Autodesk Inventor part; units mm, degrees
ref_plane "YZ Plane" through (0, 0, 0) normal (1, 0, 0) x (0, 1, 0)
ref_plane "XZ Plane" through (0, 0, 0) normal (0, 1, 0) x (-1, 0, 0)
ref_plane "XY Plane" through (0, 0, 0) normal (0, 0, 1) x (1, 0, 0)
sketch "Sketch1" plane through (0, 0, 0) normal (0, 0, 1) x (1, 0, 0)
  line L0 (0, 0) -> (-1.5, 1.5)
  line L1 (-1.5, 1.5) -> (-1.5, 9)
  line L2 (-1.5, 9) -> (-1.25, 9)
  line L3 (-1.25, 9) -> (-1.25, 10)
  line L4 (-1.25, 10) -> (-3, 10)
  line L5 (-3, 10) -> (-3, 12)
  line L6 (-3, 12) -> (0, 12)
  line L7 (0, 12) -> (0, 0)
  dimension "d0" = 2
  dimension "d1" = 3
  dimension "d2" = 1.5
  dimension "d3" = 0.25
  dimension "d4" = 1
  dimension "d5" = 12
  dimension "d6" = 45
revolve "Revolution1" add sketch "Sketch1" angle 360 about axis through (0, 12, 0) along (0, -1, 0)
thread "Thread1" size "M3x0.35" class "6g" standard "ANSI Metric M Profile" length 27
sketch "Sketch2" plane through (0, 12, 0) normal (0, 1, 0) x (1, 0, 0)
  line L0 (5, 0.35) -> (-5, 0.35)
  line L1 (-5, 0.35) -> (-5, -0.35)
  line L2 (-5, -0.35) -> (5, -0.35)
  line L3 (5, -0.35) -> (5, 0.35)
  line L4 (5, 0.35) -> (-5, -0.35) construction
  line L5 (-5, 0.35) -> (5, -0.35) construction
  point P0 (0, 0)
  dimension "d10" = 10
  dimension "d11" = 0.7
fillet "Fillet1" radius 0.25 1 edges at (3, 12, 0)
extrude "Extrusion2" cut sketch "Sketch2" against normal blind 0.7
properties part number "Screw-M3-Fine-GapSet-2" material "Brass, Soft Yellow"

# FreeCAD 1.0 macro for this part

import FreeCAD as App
import Part
import Sketcher
from FreeCAD import Vector
Q = App.Units.Quantity


def edges_at(feature, points):
    """Names of the edges that pass closest to the given points."""
    edges = feature.Shape.Edges
    near = lambda p: min(range(len(edges)), key=lambda i: edges[i].distToShape(Part.Vertex(*p))[0])
    return sorted({f"Edge{near(p) + 1}" for p in points})


def add_polygon(sketch, points):
    """Adds a closed chain of lines whose ends are joined by coincident constraints."""
    first, n = sketch.GeometryCount, len(points)
    for a, b in zip(points, points[1:] + points[:1]):
        sketch.addGeometry(Part.LineSegment(App.Vector(*a, 0), App.Vector(*b, 0)), False)
    for i in range(n):
        sketch.addConstraint(Sketcher.Constraint("Coincident", first + i, 2, first + (i + 1) % n, 1))

doc = App.newDocument("Part")
body = doc.addObject("PartDesign::Body", "Body")

# Sketch on XY plane
sketch1 = body.newObject("Sketcher::SketchObject", "Sketch")
sketch1.AttachmentSupport = (doc.getObject("XY_Plane"), [""])
sketch1.MapMode = "FlatFace"
add_polygon(sketch1, [(-1.5, 1.5), (0, 0), (0, 12), (-3, 12), (-3, 10), (-1.25, 10), (-1.25, 9), (-1.5, 9)])  # lines 0-7
sketch1.addConstraint([
    Sketcher.Constraint("Vertical", 1),
    Sketcher.Constraint("Horizontal", 2),
    Sketcher.Constraint("Vertical", 3),
    Sketcher.Constraint("Horizontal", 4),
    Sketcher.Constraint("Vertical", 5),
    Sketcher.Constraint("Horizontal", 6),
    Sketcher.Constraint("Vertical", 7),
    Sketcher.Constraint("Coincident", 0, 2, -1, 1),
    Sketcher.Constraint("DistanceX", 2, 2, 2, 1, Q("3 mm")),
    Sketcher.Constraint("DistanceY", 1, 1, 1, 2, Q("12 mm")),
    Sketcher.Constraint("DistanceY", 3, 2, 3, 1, Q("2 mm")),
    Sketcher.Constraint("DistanceY", 5, 2, 5, 1, Q("1 mm")),
    Sketcher.Constraint("Angle", 0, Q("-45 deg")),
    Sketcher.Constraint("DistanceX", 6, 2, 6, 1, Q("0.25 mm")),
    Sketcher.Constraint("DistanceX", 6, 2, -1, 1, Q("1.5 mm")),
])
revolution = body.newObject("PartDesign::Revolution", "Revolution")
revolution.Profile = sketch1
revolution.ReferenceAxis = (sketch1, ["V_Axis"])
revolution.Angle = 360
doc.recompute()

fillet = body.newObject("PartDesign::Fillet", "Fillet")
fillet.Base = (revolution, edges_at(revolution, [(3, 12, 0)]))
fillet.Radius = 0.25

# Sketch on XZ plane
sketch2 = body.newObject("Sketcher::SketchObject", "Sketch001")
sketch2.AttachmentSupport = (doc.getObject("XZ_Plane"), [""])
sketch2.MapMode = "FlatFace"
sketch2.AttachmentOffset = App.Placement(Vector(0, 0, -12), App.Rotation())
add_polygon(sketch2, [(5, 0.35), (5, -0.35), (-5, -0.35), (-5, 0.35)])  # lines 0-3
sketch2.addConstraint([
    Sketcher.Constraint("Vertical", 0),
    Sketcher.Constraint("Horizontal", 1),
    Sketcher.Constraint("Vertical", 2),
    Sketcher.Constraint("Horizontal", 3),
    Sketcher.Constraint("Symmetric", 0, 2, 2, 2, -1, 1),
    Sketcher.Constraint("DistanceX", 1, 2, 1, 1, Q("10 mm")),
    Sketcher.Constraint("DistanceY", 0, 2, 0, 1, Q("0.7 mm")),
])
pocket1 = body.newObject("PartDesign::Pocket", "Pocket")
pocket1.Profile = sketch2
pocket1.Length = 0.7
pocket1.Reversed = True

doc.recompute()
